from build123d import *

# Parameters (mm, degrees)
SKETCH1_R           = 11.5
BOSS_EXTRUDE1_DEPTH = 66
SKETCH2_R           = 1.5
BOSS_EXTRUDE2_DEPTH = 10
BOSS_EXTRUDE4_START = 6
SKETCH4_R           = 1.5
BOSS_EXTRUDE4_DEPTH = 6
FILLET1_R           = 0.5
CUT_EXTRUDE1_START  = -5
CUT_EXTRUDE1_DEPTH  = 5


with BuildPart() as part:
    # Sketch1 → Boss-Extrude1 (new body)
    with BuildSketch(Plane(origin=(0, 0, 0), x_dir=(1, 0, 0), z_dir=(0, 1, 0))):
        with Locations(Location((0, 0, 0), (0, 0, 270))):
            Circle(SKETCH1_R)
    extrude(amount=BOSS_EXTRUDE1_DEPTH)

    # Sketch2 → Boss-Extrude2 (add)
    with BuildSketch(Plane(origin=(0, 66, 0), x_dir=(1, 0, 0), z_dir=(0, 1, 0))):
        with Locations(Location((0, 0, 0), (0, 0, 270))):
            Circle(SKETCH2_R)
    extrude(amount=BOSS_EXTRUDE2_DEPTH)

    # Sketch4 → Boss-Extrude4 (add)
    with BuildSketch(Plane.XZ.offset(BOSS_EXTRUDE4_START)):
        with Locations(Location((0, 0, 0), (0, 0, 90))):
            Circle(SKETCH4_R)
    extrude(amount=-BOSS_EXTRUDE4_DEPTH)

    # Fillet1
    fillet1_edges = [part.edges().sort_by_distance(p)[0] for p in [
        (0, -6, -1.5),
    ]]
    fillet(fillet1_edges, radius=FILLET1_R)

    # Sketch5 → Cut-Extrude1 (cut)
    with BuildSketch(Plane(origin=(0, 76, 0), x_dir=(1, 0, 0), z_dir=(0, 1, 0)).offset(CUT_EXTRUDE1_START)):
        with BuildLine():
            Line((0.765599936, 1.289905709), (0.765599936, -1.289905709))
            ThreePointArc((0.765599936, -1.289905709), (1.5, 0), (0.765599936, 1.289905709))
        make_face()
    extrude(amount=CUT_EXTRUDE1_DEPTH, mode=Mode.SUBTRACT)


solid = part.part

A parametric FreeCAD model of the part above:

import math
import FreeCAD as App
import Part
import Sketcher
from FreeCAD import Vector
Q = App.Units.Quantity


def edges_at(feature, points):
    """Names of the edges that pass closest to the given points."""
    edges = feature.Shape.Edges
    near = lambda p: min(range(len(edges)), key=lambda i: edges[i].distToShape(Part.Vertex(*p))[0])
    return sorted({f"Edge{near(p) + 1}" for p in points})

doc = App.newDocument("Part")
body = doc.addObject("PartDesign::Body", "Body")

# Sketch on XZ plane
sketch1 = body.newObject("Sketcher::SketchObject", "Sketch")
sketch1.AttachmentSupport = (doc.getObject("XZ_Plane"), [""])
sketch1.MapMode = "FlatFace"
sketch1.addGeometry(Part.Circle(Vector(0, 0, 0), Vector(0, 0, 1), 11.5), False)
sketch1.addConstraint([
    Sketcher.Constraint("Coincident", 0, 3, -1, 1),
    Sketcher.Constraint("Diameter", 0, Q("23 mm")),
])
pad1 = body.newObject("PartDesign::Pad", "Pad")
pad1.Profile = sketch1
pad1.Length = 66
pad1.Reversed = True

# Sketch on XZ plane
sketch2 = body.newObject("Sketcher::SketchObject", "Sketch001")
sketch2.AttachmentSupport = (doc.getObject("XZ_Plane"), [""])
sketch2.MapMode = "FlatFace"
sketch2.AttachmentOffset = App.Placement(Vector(0, 0, -66), App.Rotation())
sketch2.addGeometry(Part.Circle(Vector(0, 0, 0), Vector(0, 0, 1), 1.5), False)
sketch2.addConstraint([
    Sketcher.Constraint("Coincident", 0, 3, -1, 1),
    Sketcher.Constraint("Diameter", 0, Q("3 mm")),
])
pad2 = body.newObject("PartDesign::Pad", "Pad001")
pad2.Profile = sketch2
pad2.Length = 10
pad2.Reversed = True

# Sketch on XZ plane
sketch3 = body.newObject("Sketcher::SketchObject", "Sketch002")
sketch3.AttachmentSupport = (doc.getObject("XZ_Plane"), [""])
sketch3.MapMode = "FlatFace"
sketch3.AttachmentOffset = App.Placement(Vector(0, 0, 6), App.Rotation())
sketch3.addGeometry(Part.Circle(Vector(0, 0, 0), Vector(0, 0, 1), 1.5), False)
sketch3.addConstraint([
    Sketcher.Constraint("Coincident", 0, 3, -1, 1),
    Sketcher.Constraint("Diameter", 0, Q("3 mm")),
])
pad3 = body.newObject("PartDesign::Pad", "Pad002")
pad3.Profile = sketch3
pad3.Length = 6
pad3.Reversed = True
doc.recompute()

fillet = body.newObject("PartDesign::Fillet", "Fillet")
fillet.Base = (pad3, edges_at(pad3, [(0, -6, -1.5)]))
fillet.Radius = 0.5

# Sketch on XZ plane
sketch4 = body.newObject("Sketcher::SketchObject", "Sketch003")
sketch4.AttachmentSupport = (doc.getObject("XZ_Plane"), [""])
sketch4.MapMode = "FlatFace"
sketch4.AttachmentOffset = App.Placement(Vector(0, 0, -71), App.Rotation())
sketch4.addGeometry([
    Part.LineSegment(Vector(0.7656, -1.289906, 0), Vector(0.7656, 1.289906, 0)),
    Part.ArcOfCircle(Part.Circle(Vector(0, 0, 0), Vector(0, 0, 1), 1.5), math.radians(-59.309526), math.radians(59.309526)),
], False)
sketch4.addConstraint([
    Sketcher.Constraint("Coincident", 0, 1, 1, 1),
    Sketcher.Constraint("Coincident", 1, 2, 0, 2),
    Sketcher.Constraint("Vertical", 0),
    Sketcher.Constraint("Coincident", 1, 3, -1, 1),
    Sketcher.Constraint("Radius", 1, Q("1.5 mm")),
    Sketcher.Constraint("DistanceY", 0, 1, 0, 2, Q("2.579811 mm")),
])
pocket1 = body.newObject("PartDesign::Pocket", "Pocket")
pocket1.Profile = sketch4
pocket1.Length = 5

doc.recompute()
